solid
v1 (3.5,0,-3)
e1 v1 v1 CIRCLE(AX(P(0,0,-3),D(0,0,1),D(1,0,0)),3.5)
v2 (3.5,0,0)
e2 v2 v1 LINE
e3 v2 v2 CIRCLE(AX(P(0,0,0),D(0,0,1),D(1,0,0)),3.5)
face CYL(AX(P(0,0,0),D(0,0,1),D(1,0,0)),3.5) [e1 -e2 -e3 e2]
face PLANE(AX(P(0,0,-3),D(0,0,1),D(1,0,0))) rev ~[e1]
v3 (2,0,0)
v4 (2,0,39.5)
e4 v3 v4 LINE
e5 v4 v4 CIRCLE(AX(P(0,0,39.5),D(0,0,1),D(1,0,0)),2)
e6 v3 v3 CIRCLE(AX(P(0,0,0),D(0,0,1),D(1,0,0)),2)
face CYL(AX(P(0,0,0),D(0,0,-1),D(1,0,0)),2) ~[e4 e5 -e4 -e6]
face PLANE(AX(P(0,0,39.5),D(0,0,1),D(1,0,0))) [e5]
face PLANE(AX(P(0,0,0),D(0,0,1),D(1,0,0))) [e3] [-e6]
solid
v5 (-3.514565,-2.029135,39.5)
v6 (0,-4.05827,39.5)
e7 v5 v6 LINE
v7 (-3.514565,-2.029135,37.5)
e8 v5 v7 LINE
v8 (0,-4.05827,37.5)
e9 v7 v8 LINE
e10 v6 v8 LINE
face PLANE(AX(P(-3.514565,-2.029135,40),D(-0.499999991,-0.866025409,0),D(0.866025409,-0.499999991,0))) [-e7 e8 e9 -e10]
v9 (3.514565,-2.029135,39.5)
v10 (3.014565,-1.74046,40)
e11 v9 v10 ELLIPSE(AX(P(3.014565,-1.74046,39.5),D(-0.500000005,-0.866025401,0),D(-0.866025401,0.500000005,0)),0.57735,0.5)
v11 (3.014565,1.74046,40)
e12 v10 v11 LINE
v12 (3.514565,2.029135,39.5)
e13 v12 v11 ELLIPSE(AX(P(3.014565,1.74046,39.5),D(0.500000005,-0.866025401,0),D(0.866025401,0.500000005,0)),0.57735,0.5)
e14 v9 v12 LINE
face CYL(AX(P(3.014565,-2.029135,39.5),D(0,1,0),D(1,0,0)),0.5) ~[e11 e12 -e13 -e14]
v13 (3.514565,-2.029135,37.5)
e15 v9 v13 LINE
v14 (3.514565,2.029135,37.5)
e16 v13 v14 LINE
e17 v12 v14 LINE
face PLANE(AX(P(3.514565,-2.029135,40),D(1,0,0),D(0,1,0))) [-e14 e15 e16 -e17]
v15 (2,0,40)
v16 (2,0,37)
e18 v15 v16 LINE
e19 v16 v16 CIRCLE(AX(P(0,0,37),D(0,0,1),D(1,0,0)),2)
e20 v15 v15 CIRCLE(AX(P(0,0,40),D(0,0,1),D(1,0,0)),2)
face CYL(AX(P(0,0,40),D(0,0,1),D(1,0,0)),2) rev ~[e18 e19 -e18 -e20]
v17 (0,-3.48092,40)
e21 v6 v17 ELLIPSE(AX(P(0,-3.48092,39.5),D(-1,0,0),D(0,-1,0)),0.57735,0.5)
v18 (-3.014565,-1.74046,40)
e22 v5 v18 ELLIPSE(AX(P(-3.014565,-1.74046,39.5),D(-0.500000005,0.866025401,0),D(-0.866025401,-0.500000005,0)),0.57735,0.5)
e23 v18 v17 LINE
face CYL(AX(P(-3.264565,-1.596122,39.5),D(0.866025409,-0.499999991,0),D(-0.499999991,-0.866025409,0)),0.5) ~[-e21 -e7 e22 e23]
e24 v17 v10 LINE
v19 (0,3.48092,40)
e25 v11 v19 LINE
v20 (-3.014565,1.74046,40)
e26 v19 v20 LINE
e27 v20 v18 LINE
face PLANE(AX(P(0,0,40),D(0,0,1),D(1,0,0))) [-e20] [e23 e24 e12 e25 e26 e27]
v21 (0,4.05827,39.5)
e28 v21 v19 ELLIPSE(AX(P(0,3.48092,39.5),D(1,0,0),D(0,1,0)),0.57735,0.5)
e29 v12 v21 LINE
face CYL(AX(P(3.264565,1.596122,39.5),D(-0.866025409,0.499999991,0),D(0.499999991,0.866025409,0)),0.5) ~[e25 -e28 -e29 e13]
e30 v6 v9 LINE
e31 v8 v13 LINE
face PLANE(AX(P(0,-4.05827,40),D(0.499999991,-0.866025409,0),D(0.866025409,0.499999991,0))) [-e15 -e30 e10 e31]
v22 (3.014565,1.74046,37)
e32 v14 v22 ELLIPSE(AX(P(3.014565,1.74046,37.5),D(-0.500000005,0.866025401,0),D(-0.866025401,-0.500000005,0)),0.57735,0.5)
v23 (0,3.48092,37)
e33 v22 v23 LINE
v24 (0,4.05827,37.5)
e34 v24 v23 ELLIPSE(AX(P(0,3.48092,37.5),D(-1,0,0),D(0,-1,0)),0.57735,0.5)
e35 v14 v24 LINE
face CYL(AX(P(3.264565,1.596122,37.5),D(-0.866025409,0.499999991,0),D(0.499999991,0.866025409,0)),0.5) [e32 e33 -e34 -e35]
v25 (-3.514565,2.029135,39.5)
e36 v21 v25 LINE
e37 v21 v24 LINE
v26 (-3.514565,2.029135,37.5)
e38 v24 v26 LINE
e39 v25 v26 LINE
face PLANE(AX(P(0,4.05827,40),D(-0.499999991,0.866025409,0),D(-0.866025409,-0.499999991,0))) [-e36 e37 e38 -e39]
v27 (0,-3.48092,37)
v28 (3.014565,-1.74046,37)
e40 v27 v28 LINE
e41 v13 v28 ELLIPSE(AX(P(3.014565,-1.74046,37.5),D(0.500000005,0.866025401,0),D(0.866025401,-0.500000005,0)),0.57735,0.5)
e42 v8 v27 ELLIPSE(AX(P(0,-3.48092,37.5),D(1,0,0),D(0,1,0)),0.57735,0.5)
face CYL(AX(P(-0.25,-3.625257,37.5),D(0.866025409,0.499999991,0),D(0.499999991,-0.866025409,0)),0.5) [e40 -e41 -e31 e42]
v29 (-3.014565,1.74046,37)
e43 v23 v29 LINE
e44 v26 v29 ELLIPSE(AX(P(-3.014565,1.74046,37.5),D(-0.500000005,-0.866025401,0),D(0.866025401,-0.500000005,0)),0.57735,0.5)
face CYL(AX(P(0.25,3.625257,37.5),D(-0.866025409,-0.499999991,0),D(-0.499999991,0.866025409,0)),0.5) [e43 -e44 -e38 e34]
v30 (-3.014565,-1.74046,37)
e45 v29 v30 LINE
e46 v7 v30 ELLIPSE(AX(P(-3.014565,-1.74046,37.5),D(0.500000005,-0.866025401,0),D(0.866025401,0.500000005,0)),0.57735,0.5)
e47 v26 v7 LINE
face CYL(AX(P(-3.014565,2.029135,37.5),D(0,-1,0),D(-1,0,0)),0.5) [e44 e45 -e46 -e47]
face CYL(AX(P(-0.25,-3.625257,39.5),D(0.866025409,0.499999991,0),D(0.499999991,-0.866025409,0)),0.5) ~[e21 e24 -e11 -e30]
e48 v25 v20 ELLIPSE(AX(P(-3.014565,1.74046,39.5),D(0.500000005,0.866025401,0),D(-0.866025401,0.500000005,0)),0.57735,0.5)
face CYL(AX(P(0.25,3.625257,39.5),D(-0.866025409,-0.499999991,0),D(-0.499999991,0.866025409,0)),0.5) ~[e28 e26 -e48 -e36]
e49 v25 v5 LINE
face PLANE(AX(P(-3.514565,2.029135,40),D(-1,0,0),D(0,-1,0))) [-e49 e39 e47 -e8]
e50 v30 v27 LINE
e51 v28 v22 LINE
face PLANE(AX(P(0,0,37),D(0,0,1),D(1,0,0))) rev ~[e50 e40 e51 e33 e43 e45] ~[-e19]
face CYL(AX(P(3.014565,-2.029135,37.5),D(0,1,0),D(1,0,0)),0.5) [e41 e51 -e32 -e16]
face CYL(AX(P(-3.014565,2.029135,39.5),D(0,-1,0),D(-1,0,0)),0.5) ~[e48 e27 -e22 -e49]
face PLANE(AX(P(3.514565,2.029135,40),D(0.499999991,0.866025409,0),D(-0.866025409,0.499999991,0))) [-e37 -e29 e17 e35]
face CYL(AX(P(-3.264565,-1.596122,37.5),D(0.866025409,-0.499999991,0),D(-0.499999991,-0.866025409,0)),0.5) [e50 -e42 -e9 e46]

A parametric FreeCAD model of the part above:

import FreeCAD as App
import Part
import Sketcher
from FreeCAD import Vector
Q = App.Units.Quantity


def edges_at(feature, points):
    """Names of the edges that pass closest to the given points."""
    edges = feature.Shape.Edges
    near = lambda p: min(range(len(edges)), key=lambda i: edges[i].distToShape(Part.Vertex(*p))[0])
    return sorted({f"Edge{near(p) + 1}" for p in points})


def add_polygon(sketch, points):
    """Adds a closed chain of lines whose ends are joined by coincident constraints."""
    first, n = sketch.GeometryCount, len(points)
    for a, b in zip(points, points[1:] + points[:1]):
        sketch.addGeometry(Part.LineSegment(App.Vector(*a, 0), App.Vector(*b, 0)), False)
    for i in range(n):
        sketch.addConstraint(Sketcher.Constraint("Coincident", first + i, 2, first + (i + 1) % n, 1))

doc = App.newDocument("Part")
params = doc.addObject("Spreadsheet::Sheet", "Params")
for row, (alias, value) in enumerate([
    ("sketch1_diameter", "4 mm"),
    ("pad1_length", "40 mm"),
    ("sketch2_diameter", "7 mm"),
    ("pad2_length", "3 mm"),
    ("sketch3_diameter", "4 mm"),
    ("pocket1_length", "0.5 mm"),
    ("sketch4_diameter", "4 mm"),
    ("pad3_length", "3 mm"),
    ("fillet_radius", "0.5 mm"),
], start=1):
    params.set(f"A{row}", alias)
    params.set(f"B{row}", "=" + value)
    params.setAlias(f"B{row}", alias)

body = doc.addObject("PartDesign::Body", "Body")

# Sketch on XY plane
sketch1 = body.newObject("Sketcher::SketchObject", "Sketch")
sketch1.AttachmentSupport = (doc.getObject("XY_Plane"), [""])
sketch1.MapMode = "FlatFace"
sketch1.addGeometry(Part.Circle(Vector(0, 0, 0), Vector(0, 0, 1), 2), False)
sketch1.addConstraint([
    Sketcher.Constraint("Coincident", 0, 3, -1, 1),
    Sketcher.Constraint("Diameter", 0, Q("4 mm")),
])
sketch1.setExpression("Constraints[1]", "Params.sketch1_diameter")
pad1 = body.newObject("PartDesign::Pad", "Pad")
pad1.Profile = sketch1
pad1.setExpression("Length", "Params.pad1_length")

# Sketch on XY plane
sketch2 = body.newObject("Sketcher::SketchObject", "Sketch001")
sketch2.AttachmentSupport = (doc.getObject("XY_Plane"), [""])
sketch2.MapMode = "FlatFace"
sketch2.addGeometry(Part.Circle(Vector(0, 0, 0), Vector(0, 0, 1), 3.5), False)
sketch2.addConstraint([
    Sketcher.Constraint("Coincident", 0, 3, -1, 1),
    Sketcher.Constraint("Diameter", 0, Q("7 mm")),
])
sketch2.setExpression("Constraints[1]", "Params.sketch2_diameter")
pad2 = body.newObject("PartDesign::Pad", "Pad001")
pad2.Profile = sketch2
pad2.setExpression("Length", "Params.pad2_length")
pad2.Reversed = True

# Sketch on XY plane
sketch3 = body.newObject("Sketcher::SketchObject", "Sketch002")
sketch3.AttachmentSupport = (doc.getObject("XY_Plane"), [""])
sketch3.MapMode = "FlatFace"
sketch3.AttachmentOffset = App.Placement(Vector(0, 0, 40), App.Rotation())
sketch3.addGeometry(Part.Circle(Vector(0, 0, 0), Vector(0, 0, 1), 2), False)
sketch3.addConstraint([
    Sketcher.Constraint("Coincident", 0, 3, -1, 1),
    Sketcher.Constraint("Diameter", 0, Q("4 mm")),
])
sketch3.setExpression("Constraints[1]", "Params.sketch3_diameter")
pocket1 = body.newObject("PartDesign::Pocket", "Pocket")
pocket1.Profile = sketch3
pocket1.setExpression("Length", "Params.pocket1_length")
body2 = doc.addObject("PartDesign::Body", "Body001")

# Sketch on XY plane
sketch4 = body2.newObject("Sketcher::SketchObject", "Sketch003")
sketch4.AttachmentSupport = (doc.getObject("XY_Plane001"), [""])
sketch4.MapMode = "FlatFace"
sketch4.AttachmentOffset = App.Placement(Vector(0, 0, 40), App.Rotation())
add_polygon(sketch4, [(3.5, -2), (3.5, 2), (0, 4.1), (-3.5, 2), (-3.5, -2), (0, -4.1)])  # lines 0-5
sketch4.addGeometry(Part.Circle(Vector(0, 0, 0), Vector(0, 0, 1), 2), False)  # 6
sketch4.addConstraint([
    Sketcher.Constraint("Vertical", 0),
    Sketcher.Constraint("Vertical", 3),
    Sketcher.Constraint("Coincident", 6, 3, -1, 1),
    Sketcher.Constraint("Symmetric", 0, 2, 3, 2, -1, 1),
    Sketcher.Constraint("Symmetric", 1, 2, 4, 2, -1, 1),
    Sketcher.Constraint("PointOnObject", 1, 2, -2),
    Sketcher.Constraint("Parallel", 2, 5),
    Sketcher.Constraint("Horizontal", 0, 2, 2, 2),
    Sketcher.Constraint("Diameter", 6, Q("4 mm")),
    Sketcher.Constraint("Angle", 1, Q("150.000001 deg")),
    Sketcher.Constraint("DistanceY", 0, 1, 0, 2, Q("4.05827 mm")),
    Sketcher.Constraint("Distance", 1, Q("4.05827 mm")),
])
sketch4.setExpression("Constraints[14]", "Params.sketch4_diameter")
pad3 = body2.newObject("PartDesign::Pad", "Pad002")
pad3.Profile = sketch4
pad3.setExpression("Length", "Params.pad3_length")
pad3.Reversed = True
doc.recompute()

fillet = body2.newObject("PartDesign::Fillet", "Fillet")
fillet.Base = (pad3, edges_at(pad3, [
    (3.515, 0, 40),
    (1.757, 3.044, 40),
    (-1.757, 3.044, 40),
    (-3.515, 0, 40),
    (-1.757, -3.044, 40),
    (1.757, -3.044, 40),
    (1.757, -3.044, 37),
    (-1.757, -3.044, 37),
    (-3.515, 0, 37),
    (-1.757, 3.044, 37),
    (1.757, 3.044, 37),
    (3.515, 0, 37),
]))
fillet.setExpression("Radius", "Params.fillet_radius")

doc.recompute()
